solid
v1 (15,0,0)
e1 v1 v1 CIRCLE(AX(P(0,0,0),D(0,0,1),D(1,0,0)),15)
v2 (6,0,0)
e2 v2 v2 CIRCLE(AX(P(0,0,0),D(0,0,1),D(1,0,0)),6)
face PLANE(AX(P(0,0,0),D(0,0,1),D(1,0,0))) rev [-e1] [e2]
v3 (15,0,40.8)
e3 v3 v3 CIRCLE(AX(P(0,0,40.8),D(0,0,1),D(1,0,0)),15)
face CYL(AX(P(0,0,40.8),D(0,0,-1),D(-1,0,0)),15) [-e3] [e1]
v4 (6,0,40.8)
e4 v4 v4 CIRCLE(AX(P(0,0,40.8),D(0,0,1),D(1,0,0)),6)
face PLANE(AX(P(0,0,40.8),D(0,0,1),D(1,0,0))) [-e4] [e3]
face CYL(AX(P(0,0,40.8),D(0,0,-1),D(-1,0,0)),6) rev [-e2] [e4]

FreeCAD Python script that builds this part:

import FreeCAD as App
import Part
import Sketcher
from FreeCAD import Vector
Q = App.Units.Quantity

doc = App.newDocument("Part")
body = doc.addObject("PartDesign::Body", "Body")

sketch1 = doc.addObject("Sketcher::SketchObject", "Sketch")
body.addObject(sketch1)
sketch1.AttachmentSupport = (doc.XY_Plane, [""])
sketch1.MapMode = "FlatFace"
sketch1.addGeometry(Part.Circle(Vector(0, 0, 0), Vector(0, 0, 1), 15), False)
sketch1.addGeometry(Part.Circle(Vector(0, 0, 0), Vector(0, 0, 1), 6), False)
sketch1.addConstraint(Sketcher.Constraint("Coincident", 0, 3, -1, 1))
sketch1.addConstraint(Sketcher.Constraint("Coincident", 1, 3, -1, 1))
sketch1.addConstraint(Sketcher.Constraint("Diameter", 0, Q("30 mm")))
sketch1.addConstraint(Sketcher.Constraint("Diameter", 1, Q("12 mm")))
pad1 = doc.addObject("PartDesign::Pad", "Pad")
body.addObject(pad1)
pad1.Profile = sketch1
pad1.Length = 40.8

doc.recompute()
